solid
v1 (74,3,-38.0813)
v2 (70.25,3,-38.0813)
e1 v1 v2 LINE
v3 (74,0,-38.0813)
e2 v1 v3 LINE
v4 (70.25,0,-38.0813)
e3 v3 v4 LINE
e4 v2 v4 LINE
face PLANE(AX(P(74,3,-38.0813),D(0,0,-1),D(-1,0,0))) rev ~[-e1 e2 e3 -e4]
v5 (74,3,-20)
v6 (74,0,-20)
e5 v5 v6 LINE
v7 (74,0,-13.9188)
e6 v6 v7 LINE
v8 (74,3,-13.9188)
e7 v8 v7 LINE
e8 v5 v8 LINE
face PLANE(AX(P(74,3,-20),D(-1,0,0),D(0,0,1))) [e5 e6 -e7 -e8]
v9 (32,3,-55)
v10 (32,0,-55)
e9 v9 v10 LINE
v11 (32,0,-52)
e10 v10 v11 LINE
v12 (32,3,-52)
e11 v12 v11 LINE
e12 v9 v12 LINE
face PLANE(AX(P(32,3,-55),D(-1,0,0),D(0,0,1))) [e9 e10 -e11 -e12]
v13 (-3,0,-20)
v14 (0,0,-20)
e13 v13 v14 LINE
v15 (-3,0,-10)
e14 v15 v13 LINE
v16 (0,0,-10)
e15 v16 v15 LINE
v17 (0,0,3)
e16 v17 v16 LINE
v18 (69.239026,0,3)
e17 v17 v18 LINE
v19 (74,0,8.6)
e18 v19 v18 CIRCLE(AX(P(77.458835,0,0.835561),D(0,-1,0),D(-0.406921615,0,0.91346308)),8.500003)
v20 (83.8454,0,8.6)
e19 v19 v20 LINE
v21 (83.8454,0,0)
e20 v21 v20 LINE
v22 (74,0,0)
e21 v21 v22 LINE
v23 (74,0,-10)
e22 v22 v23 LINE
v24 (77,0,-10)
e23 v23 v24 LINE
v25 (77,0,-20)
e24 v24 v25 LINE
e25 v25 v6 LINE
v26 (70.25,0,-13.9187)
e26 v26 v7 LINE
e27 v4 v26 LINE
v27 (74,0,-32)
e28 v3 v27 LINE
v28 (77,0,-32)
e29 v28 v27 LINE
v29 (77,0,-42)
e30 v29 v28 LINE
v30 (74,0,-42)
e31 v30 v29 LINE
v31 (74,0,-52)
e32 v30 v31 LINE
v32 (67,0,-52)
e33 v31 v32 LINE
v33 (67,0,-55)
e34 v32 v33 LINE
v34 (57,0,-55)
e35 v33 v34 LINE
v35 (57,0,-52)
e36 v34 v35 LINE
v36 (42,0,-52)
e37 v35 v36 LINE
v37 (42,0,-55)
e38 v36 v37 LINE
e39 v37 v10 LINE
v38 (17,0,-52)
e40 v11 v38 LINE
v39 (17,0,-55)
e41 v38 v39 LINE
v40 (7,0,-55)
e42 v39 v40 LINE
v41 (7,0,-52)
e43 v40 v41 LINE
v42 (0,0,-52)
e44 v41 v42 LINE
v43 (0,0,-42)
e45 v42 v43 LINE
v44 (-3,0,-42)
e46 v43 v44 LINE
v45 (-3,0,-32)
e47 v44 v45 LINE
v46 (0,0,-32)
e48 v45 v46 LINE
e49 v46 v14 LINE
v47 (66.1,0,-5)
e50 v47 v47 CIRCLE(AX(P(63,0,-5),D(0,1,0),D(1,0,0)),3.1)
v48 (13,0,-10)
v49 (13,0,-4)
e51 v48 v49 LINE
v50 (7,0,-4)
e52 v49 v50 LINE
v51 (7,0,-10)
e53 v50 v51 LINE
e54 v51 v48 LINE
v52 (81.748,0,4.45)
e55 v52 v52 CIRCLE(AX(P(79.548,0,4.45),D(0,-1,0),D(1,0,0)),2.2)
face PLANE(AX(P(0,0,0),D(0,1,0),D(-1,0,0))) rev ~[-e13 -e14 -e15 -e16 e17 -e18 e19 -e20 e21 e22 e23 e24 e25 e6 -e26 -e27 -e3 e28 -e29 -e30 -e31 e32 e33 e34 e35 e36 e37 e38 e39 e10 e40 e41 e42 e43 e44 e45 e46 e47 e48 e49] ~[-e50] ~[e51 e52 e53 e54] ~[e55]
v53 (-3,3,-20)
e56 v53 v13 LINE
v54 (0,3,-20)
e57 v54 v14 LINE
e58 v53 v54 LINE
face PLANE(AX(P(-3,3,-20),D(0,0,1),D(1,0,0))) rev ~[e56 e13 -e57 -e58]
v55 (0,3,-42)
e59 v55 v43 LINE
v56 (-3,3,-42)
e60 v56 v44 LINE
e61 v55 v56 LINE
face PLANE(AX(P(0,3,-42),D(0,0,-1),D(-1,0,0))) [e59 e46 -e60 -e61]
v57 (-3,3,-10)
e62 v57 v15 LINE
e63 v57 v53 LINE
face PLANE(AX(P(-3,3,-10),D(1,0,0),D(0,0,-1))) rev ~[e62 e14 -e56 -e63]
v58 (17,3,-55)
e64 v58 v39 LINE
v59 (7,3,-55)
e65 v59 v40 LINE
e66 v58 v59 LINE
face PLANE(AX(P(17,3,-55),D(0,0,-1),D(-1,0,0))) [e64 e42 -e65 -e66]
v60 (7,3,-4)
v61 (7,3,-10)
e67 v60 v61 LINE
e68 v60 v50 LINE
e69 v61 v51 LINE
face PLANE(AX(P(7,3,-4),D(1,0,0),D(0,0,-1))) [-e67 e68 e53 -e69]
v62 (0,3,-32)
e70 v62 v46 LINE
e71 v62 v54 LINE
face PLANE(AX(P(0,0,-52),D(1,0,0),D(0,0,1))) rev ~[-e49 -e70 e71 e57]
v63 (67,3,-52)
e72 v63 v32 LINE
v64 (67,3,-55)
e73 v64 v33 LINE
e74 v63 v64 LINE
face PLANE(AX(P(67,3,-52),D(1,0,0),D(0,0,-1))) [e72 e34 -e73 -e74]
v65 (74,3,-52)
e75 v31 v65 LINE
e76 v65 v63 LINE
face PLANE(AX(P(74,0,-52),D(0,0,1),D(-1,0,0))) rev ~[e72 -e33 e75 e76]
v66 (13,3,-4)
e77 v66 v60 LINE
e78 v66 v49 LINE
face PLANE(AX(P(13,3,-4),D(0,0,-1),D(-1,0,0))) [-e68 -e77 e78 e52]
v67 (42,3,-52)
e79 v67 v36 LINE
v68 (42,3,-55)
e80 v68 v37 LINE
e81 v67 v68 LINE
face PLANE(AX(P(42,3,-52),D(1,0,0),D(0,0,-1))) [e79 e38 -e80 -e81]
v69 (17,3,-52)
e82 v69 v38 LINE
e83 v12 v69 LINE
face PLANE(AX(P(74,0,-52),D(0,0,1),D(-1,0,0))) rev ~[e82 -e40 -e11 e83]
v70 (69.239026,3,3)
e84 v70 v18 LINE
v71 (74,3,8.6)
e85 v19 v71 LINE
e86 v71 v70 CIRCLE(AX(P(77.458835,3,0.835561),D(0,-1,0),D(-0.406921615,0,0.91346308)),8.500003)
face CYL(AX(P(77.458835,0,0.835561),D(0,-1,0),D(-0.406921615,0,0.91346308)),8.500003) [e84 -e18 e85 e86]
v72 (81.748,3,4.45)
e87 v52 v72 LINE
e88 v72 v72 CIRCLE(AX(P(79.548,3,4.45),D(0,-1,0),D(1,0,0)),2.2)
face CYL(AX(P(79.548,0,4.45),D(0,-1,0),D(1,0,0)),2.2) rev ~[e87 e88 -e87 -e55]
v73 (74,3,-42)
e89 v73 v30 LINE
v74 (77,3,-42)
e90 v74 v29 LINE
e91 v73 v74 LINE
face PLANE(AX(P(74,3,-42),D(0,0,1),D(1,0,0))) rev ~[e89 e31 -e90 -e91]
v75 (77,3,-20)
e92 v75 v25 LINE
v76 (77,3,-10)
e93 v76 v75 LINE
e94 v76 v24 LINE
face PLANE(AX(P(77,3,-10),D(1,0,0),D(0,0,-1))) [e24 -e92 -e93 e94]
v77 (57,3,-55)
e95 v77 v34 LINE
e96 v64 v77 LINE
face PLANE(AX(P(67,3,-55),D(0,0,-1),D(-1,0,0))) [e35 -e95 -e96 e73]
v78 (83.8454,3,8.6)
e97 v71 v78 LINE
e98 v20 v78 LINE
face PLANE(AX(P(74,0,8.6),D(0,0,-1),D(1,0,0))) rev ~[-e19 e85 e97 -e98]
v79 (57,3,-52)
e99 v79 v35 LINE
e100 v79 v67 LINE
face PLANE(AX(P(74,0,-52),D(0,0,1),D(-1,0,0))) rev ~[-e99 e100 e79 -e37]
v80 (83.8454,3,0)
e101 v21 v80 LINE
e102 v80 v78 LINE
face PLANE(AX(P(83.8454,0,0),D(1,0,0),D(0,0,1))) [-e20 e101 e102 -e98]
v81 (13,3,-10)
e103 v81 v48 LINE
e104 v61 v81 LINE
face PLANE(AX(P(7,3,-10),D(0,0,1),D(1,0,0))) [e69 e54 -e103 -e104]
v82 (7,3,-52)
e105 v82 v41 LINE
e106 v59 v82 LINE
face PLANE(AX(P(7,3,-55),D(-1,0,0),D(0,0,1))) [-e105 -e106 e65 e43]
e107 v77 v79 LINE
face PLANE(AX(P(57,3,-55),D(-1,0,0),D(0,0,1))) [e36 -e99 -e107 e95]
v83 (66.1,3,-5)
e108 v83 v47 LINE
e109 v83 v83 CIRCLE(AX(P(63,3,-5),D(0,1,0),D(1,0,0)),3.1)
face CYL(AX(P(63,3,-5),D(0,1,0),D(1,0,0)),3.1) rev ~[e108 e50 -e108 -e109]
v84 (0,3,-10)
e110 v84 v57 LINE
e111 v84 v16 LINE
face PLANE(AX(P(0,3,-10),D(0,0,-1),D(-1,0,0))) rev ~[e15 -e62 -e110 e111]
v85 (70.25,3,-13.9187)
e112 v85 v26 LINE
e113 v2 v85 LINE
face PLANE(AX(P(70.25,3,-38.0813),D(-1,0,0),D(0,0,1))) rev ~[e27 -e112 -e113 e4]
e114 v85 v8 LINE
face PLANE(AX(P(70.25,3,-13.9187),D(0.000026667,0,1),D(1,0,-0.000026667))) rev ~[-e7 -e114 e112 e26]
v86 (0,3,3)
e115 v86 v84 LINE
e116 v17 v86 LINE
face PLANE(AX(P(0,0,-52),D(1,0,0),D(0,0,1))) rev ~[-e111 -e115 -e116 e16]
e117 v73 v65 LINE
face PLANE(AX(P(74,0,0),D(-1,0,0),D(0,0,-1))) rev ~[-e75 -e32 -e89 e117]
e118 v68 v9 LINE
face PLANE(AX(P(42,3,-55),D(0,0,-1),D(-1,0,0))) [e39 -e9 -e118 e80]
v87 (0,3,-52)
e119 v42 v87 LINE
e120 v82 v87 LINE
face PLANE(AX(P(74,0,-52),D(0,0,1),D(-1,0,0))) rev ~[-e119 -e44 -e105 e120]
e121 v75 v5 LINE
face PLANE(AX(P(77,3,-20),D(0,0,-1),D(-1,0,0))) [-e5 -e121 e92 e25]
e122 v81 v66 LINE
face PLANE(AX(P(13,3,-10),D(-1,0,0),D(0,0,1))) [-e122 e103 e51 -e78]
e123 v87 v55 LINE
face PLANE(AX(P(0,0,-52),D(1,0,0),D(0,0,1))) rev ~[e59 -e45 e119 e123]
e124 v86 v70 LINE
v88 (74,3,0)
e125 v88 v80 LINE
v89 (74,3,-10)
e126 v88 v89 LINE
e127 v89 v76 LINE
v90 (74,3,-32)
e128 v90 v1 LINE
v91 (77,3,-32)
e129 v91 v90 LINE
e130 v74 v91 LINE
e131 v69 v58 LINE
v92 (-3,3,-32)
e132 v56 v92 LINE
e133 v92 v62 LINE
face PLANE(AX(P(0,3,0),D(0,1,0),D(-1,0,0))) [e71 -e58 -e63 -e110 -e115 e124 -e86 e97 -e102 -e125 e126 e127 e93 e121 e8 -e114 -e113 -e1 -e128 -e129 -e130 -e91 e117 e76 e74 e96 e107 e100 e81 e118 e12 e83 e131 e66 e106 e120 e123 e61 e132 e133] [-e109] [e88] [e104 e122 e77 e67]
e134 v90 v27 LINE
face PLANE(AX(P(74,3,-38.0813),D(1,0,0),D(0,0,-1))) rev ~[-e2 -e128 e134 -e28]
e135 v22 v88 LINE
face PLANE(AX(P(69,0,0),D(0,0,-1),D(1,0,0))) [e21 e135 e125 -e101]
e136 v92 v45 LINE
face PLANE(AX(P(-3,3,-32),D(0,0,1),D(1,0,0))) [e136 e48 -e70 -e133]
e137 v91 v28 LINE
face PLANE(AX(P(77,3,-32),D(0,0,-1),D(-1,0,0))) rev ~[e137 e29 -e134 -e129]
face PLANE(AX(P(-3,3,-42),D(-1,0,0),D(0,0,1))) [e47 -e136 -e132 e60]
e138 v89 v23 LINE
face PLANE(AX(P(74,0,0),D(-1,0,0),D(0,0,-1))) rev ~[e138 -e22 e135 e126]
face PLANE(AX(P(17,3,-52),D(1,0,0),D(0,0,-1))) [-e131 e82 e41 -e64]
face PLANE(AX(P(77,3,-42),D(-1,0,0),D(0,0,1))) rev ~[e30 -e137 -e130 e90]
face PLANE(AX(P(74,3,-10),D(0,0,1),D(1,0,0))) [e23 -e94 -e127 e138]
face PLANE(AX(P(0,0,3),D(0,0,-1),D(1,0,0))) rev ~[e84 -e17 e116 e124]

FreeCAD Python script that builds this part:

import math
import FreeCAD as App
import Part
import Sketcher

V = App.Vector
Q = App.Units.Quantity


def add_polygon(sketch, points):
    """Adds a closed chain of lines whose ends are joined by coincident constraints."""
    first, n = sketch.GeometryCount, len(points)
    for a, b in zip(points, points[1:] + points[:1]):
        sketch.addGeometry(Part.LineSegment(App.Vector(*a, 0), App.Vector(*b, 0)), False)
    for i in range(n):
        sketch.addConstraint(Sketcher.Constraint("Coincident", first + i, 2, first + (i + 1) % n, 1))

doc = App.newDocument("Part")
body = doc.addObject("PartDesign::Body", "Body")

sketch1 = body.newObject("Sketcher::SketchObject", "Sketch")
sketch1.AttachmentSupport = (doc.getObject("XZ_Plane"), [""])
sketch1.MapMode = "FlatFace"
add_polygon(sketch1, [(0, -52), (0, 0), (74, 0), (74, -52)])
sketch1.addConstraint([
    Sketcher.Constraint("Vertical", 0),
    Sketcher.Constraint("Horizontal", 1),
    Sketcher.Constraint("Vertical", 2),
    Sketcher.Constraint("Horizontal", 3),
    Sketcher.Constraint("Coincident", 0, 2, -1, 1),
    Sketcher.Constraint("DistanceX", 1, 1, 1, 2, Q("74 mm")),
    Sketcher.Constraint("DistanceY", 0, 1, 0, 2, Q("52 mm")),
])
pad1 = body.newObject("PartDesign::Pad", "Pad")
pad1.Profile = sketch1
pad1.Length = 3
pad1.Reversed = True

sketch2 = body.newObject("Sketcher::SketchObject", "Sketch001")
sketch2.AttachmentSupport = (doc.getObject("XZ_Plane"), [""])
sketch2.MapMode = "FlatFace"
sketch2.AttachmentOffset = App.Placement(V(0, 0, -3), App.Rotation())
add_polygon(sketch2, [(7, -52), (17, -52), (17, -55), (7, -55)])
add_polygon(sketch2, [(32, -52), (42, -52), (42, -55), (32, -55)])
add_polygon(sketch2, [(57, -52), (67, -52), (67, -55), (57, -55)])
sketch2.addConstraint([
    Sketcher.Constraint("Horizontal", 0),
    Sketcher.Constraint("Vertical", 1),
    Sketcher.Constraint("Horizontal", 2),
    Sketcher.Constraint("Vertical", 3),
    Sketcher.Constraint("Horizontal", 4),
    Sketcher.Constraint("Vertical", 5),
    Sketcher.Constraint("Horizontal", 6),
    Sketcher.Constraint("Vertical", 7),
    Sketcher.Constraint("Horizontal", 8),
    Sketcher.Constraint("Vertical", 9),
    Sketcher.Constraint("Horizontal", 10),
    Sketcher.Constraint("Vertical", 11),
    Sketcher.Constraint("Horizontal", 3, 2, 4, 2),
    Sketcher.Constraint("Horizontal", 2, 2, 5, 2),
    Sketcher.Constraint("Horizontal", 7, 2, 8, 2),
    Sketcher.Constraint("Horizontal", 6, 2, 9, 2),
    Sketcher.Constraint("Equal", 2, 4),
    Sketcher.Constraint("Equal", 6, 8),
    Sketcher.Constraint("DistanceX", 0, 1, 0, 2, Q("10 mm")),
    Sketcher.Constraint("DistanceY", 1, 2, 1, 1, Q("3 mm")),
    Sketcher.Constraint("DistanceX", -1, 1, 2, 2, Q("7 mm")),
    Sketcher.Constraint("DistanceX", 1, 2, 6, 2, Q("15 mm")),
    Sketcher.Constraint("DistanceX", 5, 2, 10, 2, Q("15 mm")),
    Sketcher.Constraint("DistanceY", 0, 2, -1, 1, Q("52 mm")),
])
pad2 = body.newObject("PartDesign::Pad", "Pad001")
pad2.Profile = sketch2
pad2.Length = 3

sketch3 = body.newObject("Sketcher::SketchObject", "Sketch002")
sketch3.AttachmentSupport = (doc.getObject("XZ_Plane"), [""])
sketch3.MapMode = "FlatFace"
sketch3.AttachmentOffset = App.Placement(V(0, 0, -3), App.Rotation())
sketch3.addGeometry(Part.Circle(V(63, -5, 0), V(0, 0, 1), 3.1), False)
sketch3.addConstraint([
    Sketcher.Constraint("Diameter", 0, Q("6.2 mm")),
    Sketcher.Constraint("DistanceY", 0, 3, -1, 1, Q("5 mm")),
    Sketcher.Constraint("DistanceX", -1, 1, 0, 3, Q("63 mm")),
])
pocket1 = body.newObject("PartDesign::Pocket", "Pocket")
pocket1.Profile = sketch3
pocket1.Length = 10
pocket1.Reversed = True

sketch4 = body.newObject("Sketcher::SketchObject", "Sketch003")
sketch4.AttachmentSupport = (doc.getObject("XZ_Plane"), [""])
sketch4.MapMode = "FlatFace"
sketch4.AttachmentOffset = App.Placement(V(0, 0, -3), App.Rotation())
add_polygon(sketch4, [(70.2, -38.1), (70.2, -13.9), (74, -13.9), (74, -38.1)])
sketch4.addConstraint([
    Sketcher.Constraint("Vertical", 0),
    Sketcher.Constraint("Horizontal", 1),
    Sketcher.Constraint("Vertical", 2),
    Sketcher.Constraint("Horizontal", 3),
    Sketcher.Constraint("DistanceX", 1, 1, 1, 2, Q("3.75 mm")),
    Sketcher.Constraint("DistanceY", 0, 1, 0, 2, Q("24.1626 mm")),
    Sketcher.Constraint("DistanceX", -1, 1, 1, 2, Q("74 mm")),
    Sketcher.Constraint("DistanceY", 0, 2, -1, 1, Q("13.9187 mm")),
])
pocket2 = body.newObject("PartDesign::Pocket", "Pocket001")
pocket2.Profile = sketch4
pocket2.Length = 10
pocket2.Reversed = True

sketch5 = body.newObject("Sketcher::SketchObject", "Sketch004")
sketch5.AttachmentSupport = (doc.getObject("XZ_Plane"), [""])
sketch5.MapMode = "FlatFace"
sketch5.AttachmentOffset = App.Placement(V(0, 0, -3), App.Rotation())
add_polygon(sketch5, [(-3, -10), (0, -10), (0, -20), (-3, -20)])
add_polygon(sketch5, [(0, -32), (0, -42), (-3, -42), (-3, -32)])
add_polygon(sketch5, [(74, -20), (74, -10), (77, -10), (77, -20)])
add_polygon(sketch5, [(74, -42), (74, -32), (77, -32), (77, -42)])
sketch5.addConstraint([
    Sketcher.Constraint("Horizontal", 0),
    Sketcher.Constraint("Vertical", 1),
    Sketcher.Constraint("Horizontal", 2),
    Sketcher.Constraint("Vertical", 3),
    Sketcher.Constraint("Vertical", 4),
    Sketcher.Constraint("Horizontal", 5),
    Sketcher.Constraint("Vertical", 6),
    Sketcher.Constraint("Horizontal", 7),
    Sketcher.Constraint("Vertical", 8),
    Sketcher.Constraint("Horizontal", 9),
    Sketcher.Constraint("Vertical", 10),
    Sketcher.Constraint("Horizontal", 11),
    Sketcher.Constraint("Vertical", 12),
    Sketcher.Constraint("Horizontal", 13),
    Sketcher.Constraint("Vertical", 14),
    Sketcher.Constraint("Horizontal", 15),
    Sketcher.Constraint("PointOnObject", 0, 2, -2),
    Sketcher.Constraint("PointOnObject", 4, 2, -2),
    Sketcher.Constraint("Horizontal", 3, 2, 8, 2),
    Sketcher.Constraint("Horizontal", 2, 2, 10, 2),
    Sketcher.Constraint("Horizontal", 7, 2, 12, 2),
    Sketcher.Constraint("Horizontal", 5, 2, 14, 2),
    Sketcher.Constraint("Vertical", 3, 2, 5, 2),
    Sketcher.Constraint("Vertical", 11, 2, 12, 2),
    Sketcher.Constraint("Vertical", 10, 2, 13, 2),
    Sketcher.Constraint("Equal", 7, 9),
    Sketcher.Constraint("Equal", 3, 4),
    Sketcher.Constraint("DistanceX", 0, 1, 0, 2, Q("3 mm")),
    Sketcher.Constraint("DistanceY", 1, 2, 1, 1, Q("10 mm")),
    Sketcher.Constraint("DistanceY", 0, 2, -1, 1, Q("10 mm")),
    Sketcher.Constraint("DistanceY", 4, 2, -1, 1, Q("42 mm")),
    Sketcher.Constraint("DistanceX", -1, 1, 8, 2, Q("74 mm")),
])
pad3 = body.newObject("PartDesign::Pad", "Pad002")
pad3.Profile = sketch5
pad3.Length = 3

sketch6 = body.newObject("Sketcher::SketchObject", "Sketch005")
sketch6.AttachmentSupport = (doc.getObject("XZ_Plane"), [""])
sketch6.MapMode = "FlatFace"
sketch6.addGeometry([
    Part.ArcOfCircle(Part.Circle(V(77.5, 0.8, 0), V(0, 0, 1), 8.5), math.radians(114), math.radians(186)),
    Part.LineSegment(V(69, 0, 0), V(83.8, 0, 0)),
    Part.LineSegment(V(83.8, 0, 0), V(83.8, 8.6, 0)),
    Part.LineSegment(V(83.8, 8.6, 0), V(74, 8.6, 0)),
    Part.Circle(V(79.5, 4.5, 0), V(0, 0, 1), 2.2),
], False)
sketch6.addConstraint([
    Sketcher.Constraint("Coincident", 0, 2, 1, 1),
    Sketcher.Constraint("Coincident", 1, 2, 2, 1),
    Sketcher.Constraint("Coincident", 2, 2, 3, 1),
    Sketcher.Constraint("Coincident", 3, 2, 0, 1),
    Sketcher.Constraint("Horizontal", 1),
    Sketcher.Constraint("Vertical", 2),
    Sketcher.Constraint("Horizontal", 3),
    Sketcher.Constraint("PointOnObject", 0, 2, -1),
    Sketcher.Constraint("Diameter", 4, Q("4.4 mm")),
    Sketcher.Constraint("Radius", 0, Q("8.5 mm")),
    Sketcher.Constraint("DistanceY", 2, 1, 2, 2, Q("8.6 mm")),
    Sketcher.Constraint("DistanceX", 0, 2, 3, 2, Q("5 mm")),
    Sketcher.Constraint("DistanceY", 4, 3, 2, 2, Q("4.15 mm")),
    Sketcher.Constraint("DistanceX", -1, 1, 0, 2, Q("69 mm")),
    Sketcher.Constraint("DistanceX", 1, 1, 1, 2, Q("14.8454 mm")),
    Sketcher.Constraint("DistanceX", -1, 1, 4, 3, Q("79.548 mm")),
])
pad4 = body.newObject("PartDesign::Pad", "Pad003")
pad4.Profile = sketch6
pad4.Length = 3
pad4.Reversed = True

sketch7 = body.newObject("Sketcher::SketchObject", "Sketch006")
sketch7.AttachmentSupport = (doc.getObject("XZ_Plane"), [""])
sketch7.MapMode = "FlatFace"
add_polygon(sketch7, [(0, 0), (74, 0), (74, 3), (0, 3)])
sketch7.addConstraint([
    Sketcher.Constraint("Horizontal", 0),
    Sketcher.Constraint("Vertical", 1),
    Sketcher.Constraint("Horizontal", 2),
    Sketcher.Constraint("Vertical", 3),
    Sketcher.Constraint("Coincident", 3, 2, -1, 1),
    Sketcher.Constraint("DistanceY", 1, 1, 1, 2, Q("3 mm")),
    Sketcher.Constraint("DistanceX", 0, 1, 0, 2, Q("74 mm")),
])
pad5 = body.newObject("PartDesign::Pad", "Pad004")
pad5.Profile = sketch7
pad5.Length = 3
pad5.Reversed = True

sketch8 = body.newObject("Sketcher::SketchObject", "Sketch007")
sketch8.AttachmentSupport = (doc.getObject("XZ_Plane"), [""])
sketch8.MapMode = "FlatFace"
sketch8.AttachmentOffset = App.Placement(V(0, 0, -3), App.Rotation())
add_polygon(sketch8, [(7, -4), (13, -4), (13, -10), (7, -10)])
sketch8.addConstraint([
    Sketcher.Constraint("Horizontal", 0),
    Sketcher.Constraint("Vertical", 1),
    Sketcher.Constraint("Horizontal", 2),
    Sketcher.Constraint("Vertical", 3),
    Sketcher.Constraint("Equal", 2, 1),
    Sketcher.Constraint("DistanceX", 0, 1, 0, 2, Q("6 mm")),
    Sketcher.Constraint("DistanceX", -1, 1, 2, 2, Q("7 mm")),
    Sketcher.Constraint("DistanceY", 0, 2, -1, 1, Q("4 mm")),
])
pocket3 = body.newObject("PartDesign::Pocket", "Pocket002")
pocket3.Profile = sketch8
pocket3.Length = 10
pocket3.Reversed = True

doc.recompute()
